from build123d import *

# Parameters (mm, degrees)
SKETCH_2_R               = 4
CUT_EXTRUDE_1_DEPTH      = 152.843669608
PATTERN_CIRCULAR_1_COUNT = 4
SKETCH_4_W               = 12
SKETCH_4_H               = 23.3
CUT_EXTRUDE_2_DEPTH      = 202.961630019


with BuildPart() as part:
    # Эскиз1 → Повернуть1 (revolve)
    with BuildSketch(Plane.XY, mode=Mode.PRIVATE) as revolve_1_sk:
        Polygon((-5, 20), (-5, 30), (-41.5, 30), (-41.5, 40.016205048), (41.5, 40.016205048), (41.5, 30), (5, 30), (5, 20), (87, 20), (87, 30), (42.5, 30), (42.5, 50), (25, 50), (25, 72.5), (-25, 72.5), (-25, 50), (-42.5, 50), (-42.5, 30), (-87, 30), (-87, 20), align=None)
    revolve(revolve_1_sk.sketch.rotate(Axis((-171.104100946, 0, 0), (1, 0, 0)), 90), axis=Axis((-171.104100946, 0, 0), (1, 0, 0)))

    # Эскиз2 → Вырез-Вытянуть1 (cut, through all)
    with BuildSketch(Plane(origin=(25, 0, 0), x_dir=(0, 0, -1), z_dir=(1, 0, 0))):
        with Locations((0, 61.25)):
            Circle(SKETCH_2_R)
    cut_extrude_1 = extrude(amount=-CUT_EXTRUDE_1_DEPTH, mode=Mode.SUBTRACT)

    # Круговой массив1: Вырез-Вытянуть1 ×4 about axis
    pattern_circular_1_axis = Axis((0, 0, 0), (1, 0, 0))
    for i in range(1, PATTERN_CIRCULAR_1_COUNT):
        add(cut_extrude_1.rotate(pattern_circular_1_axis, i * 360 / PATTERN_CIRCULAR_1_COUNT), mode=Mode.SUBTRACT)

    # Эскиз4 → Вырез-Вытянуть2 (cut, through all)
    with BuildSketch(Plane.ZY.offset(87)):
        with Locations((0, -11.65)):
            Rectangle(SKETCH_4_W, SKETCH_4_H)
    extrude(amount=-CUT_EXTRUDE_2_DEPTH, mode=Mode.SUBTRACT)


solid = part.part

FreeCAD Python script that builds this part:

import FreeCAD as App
import Part
import Sketcher
from FreeCAD import Vector

doc = App.newDocument("Part")
body = doc.addObject("PartDesign::Body", "Body")

# Sketch on XY plane
sketch1 = body.newObject("Sketcher::SketchObject", "Sketch")
sketch1.AttachmentSupport = (doc.getObject("XY_Plane"), [""])
sketch1.MapMode = "FlatFace"
sketch1.addGeometry(Part.LineSegment(Vector(-5, 20, 0), Vector(-5, 30, 0)), False)
sketch1.addGeometry(Part.LineSegment(Vector(-5, 30, 0), Vector(-42, 30, 0)), False)
sketch1.addGeometry(Part.LineSegment(Vector(-42, 30, 0), Vector(-42, 40, 0)), False)
sketch1.addGeometry(Part.LineSegment(Vector(-42, 40, 0), Vector(42, 40, 0)), False)
sketch1.addGeometry(Part.LineSegment(Vector(42, 40, 0), Vector(42, 30, 0)), False)
sketch1.addGeometry(Part.LineSegment(Vector(42, 30, 0), Vector(5, 30, 0)), False)
sketch1.addGeometry(Part.LineSegment(Vector(5, 30, 0), Vector(5, 20, 0)), False)
sketch1.addGeometry(Part.LineSegment(Vector(5, 20, 0), Vector(87, 20, 0)), False)
sketch1.addGeometry(Part.LineSegment(Vector(87, 20, 0), Vector(87, 30, 0)), False)
sketch1.addGeometry(Part.LineSegment(Vector(87, 30, 0), Vector(42, 30, 0)), False)
sketch1.addGeometry(Part.LineSegment(Vector(42, 30, 0), Vector(42, 50, 0)), False)
sketch1.addGeometry(Part.LineSegment(Vector(42, 50, 0), Vector(25, 50, 0)), False)
sketch1.addGeometry(Part.LineSegment(Vector(25, 50, 0), Vector(25, 72, 0)), False)
sketch1.addGeometry(Part.LineSegment(Vector(25, 72, 0), Vector(-25, 72, 0)), False)
sketch1.addGeometry(Part.LineSegment(Vector(-25, 72, 0), Vector(-25, 50, 0)), False)
sketch1.addGeometry(Part.LineSegment(Vector(-25, 50, 0), Vector(-42, 50, 0)), False)
sketch1.addGeometry(Part.LineSegment(Vector(-42, 50, 0), Vector(-42, 30, 0)), False)
sketch1.addGeometry(Part.LineSegment(Vector(-42, 30, 0), Vector(-87, 30, 0)), False)
sketch1.addGeometry(Part.LineSegment(Vector(-87, 30, 0), Vector(-87, 20, 0)), False)
sketch1.addGeometry(Part.LineSegment(Vector(-87, 20, 0), Vector(-5, 20, 0)), False)
sketch1.addConstraint(Sketcher.Constraint("Coincident", 0, 2, 1, 1))
sketch1.addConstraint(Sketcher.Constraint("Coincident", 1, 2, 2, 1))
sketch1.addConstraint(Sketcher.Constraint("Coincident", 2, 2, 3, 1))
sketch1.addConstraint(Sketcher.Constraint("Coincident", 3, 2, 4, 1))
sketch1.addConstraint(Sketcher.Constraint("Coincident", 4, 2, 5, 1))
sketch1.addConstraint(Sketcher.Constraint("Coincident", 5, 2, 6, 1))
sketch1.addConstraint(Sketcher.Constraint("Coincident", 6, 2, 7, 1))
sketch1.addConstraint(Sketcher.Constraint("Coincident", 7, 2, 8, 1))
sketch1.addConstraint(Sketcher.Constraint("Coincident", 8, 2, 9, 1))
sketch1.addConstraint(Sketcher.Constraint("Coincident", 9, 2, 10, 1))
sketch1.addConstraint(Sketcher.Constraint("Coincident", 10, 2, 11, 1))
sketch1.addConstraint(Sketcher.Constraint("Coincident", 11, 2, 12, 1))
sketch1.addConstraint(Sketcher.Constraint("Coincident", 12, 2, 13, 1))
sketch1.addConstraint(Sketcher.Constraint("Coincident", 13, 2, 14, 1))
sketch1.addConstraint(Sketcher.Constraint("Coincident", 14, 2, 15, 1))
sketch1.addConstraint(Sketcher.Constraint("Coincident", 15, 2, 16, 1))
sketch1.addConstraint(Sketcher.Constraint("Coincident", 16, 2, 17, 1))
sketch1.addConstraint(Sketcher.Constraint("Coincident", 17, 2, 18, 1))
sketch1.addConstraint(Sketcher.Constraint("Coincident", 18, 2, 19, 1))
sketch1.addConstraint(Sketcher.Constraint("Coincident", 19, 2, 0, 1))
sketch1.addConstraint(Sketcher.Constraint("Vertical", 0))
sketch1.addConstraint(Sketcher.Constraint("Horizontal", 1))
sketch1.addConstraint(Sketcher.Constraint("Vertical", 2))
sketch1.addConstraint(Sketcher.Constraint("Horizontal", 3))
sketch1.addConstraint(Sketcher.Constraint("Vertical", 4))
sketch1.addConstraint(Sketcher.Constraint("Horizontal", 5))
sketch1.addConstraint(Sketcher.Constraint("Vertical", 6))
sketch1.addConstraint(Sketcher.Constraint("Horizontal", 7))
sketch1.addConstraint(Sketcher.Constraint("Vertical", 8))
sketch1.addConstraint(Sketcher.Constraint("Horizontal", 9))
sketch1.addConstraint(Sketcher.Constraint("Vertical", 10))
sketch1.addConstraint(Sketcher.Constraint("Horizontal", 11))
sketch1.addConstraint(Sketcher.Constraint("Vertical", 12))
sketch1.addConstraint(Sketcher.Constraint("Horizontal", 13))
sketch1.addConstraint(Sketcher.Constraint("Vertical", 14))
sketch1.addConstraint(Sketcher.Constraint("Horizontal", 15))
sketch1.addConstraint(Sketcher.Constraint("Vertical", 16))
sketch1.addConstraint(Sketcher.Constraint("Horizontal", 17))
sketch1.addConstraint(Sketcher.Constraint("Vertical", 18))
sketch1.addConstraint(Sketcher.Constraint("Horizontal", 19))
sketch1.addConstraint(Sketcher.Constraint("Symmetric", 1, 2, 4, 2, -2))
sketch1.addConstraint(Sketcher.Constraint("Symmetric", 11, 2, 14, 2, -2))
sketch1.addConstraint(Sketcher.Constraint("Symmetric", 9, 2, 16, 2, -2))
sketch1.addConstraint(Sketcher.Constraint("Symmetric", 7, 2, 18, 2, -2))
sketch1.addConstraint(Sketcher.Constraint("Horizontal", 5, 2, 8, 2))
sketch1.addConstraint(Sketcher.Constraint("Equal", 1, 5))
sketch1.addConstraint(Sketcher.Constraint("DistanceX", 3, 1, 3, 2, 83.0))
sketch1.addConstraint(Sketcher.Constraint("DistanceX", 7, 1, 7, 2, 82.0))
sketch1.addConstraint(Sketcher.Constraint("DistanceX", 13, 2, 13, 1, 50.0))
sketch1.addConstraint(Sketcher.Constraint("DistanceY", 0, 1, 0, 2, 10.0))
sketch1.addConstraint(Sketcher.Constraint("DistanceY", 10, 1, 10, 2, 20.0))
sketch1.addConstraint(Sketcher.Constraint("DistanceX", 1, 2, 1, 1, 36.5))
sketch1.addConstraint(Sketcher.Constraint("DistanceX", 9, 2, 9, 1, 44.5))
sketch1.addConstraint(Sketcher.Constraint("DistanceY", 12, 1, 12, 2, 22.5))
sketch1.addConstraint(Sketcher.Constraint("DistanceY", -1, 1, 0, 2, 30.0))
sketch1.addConstraint(Sketcher.Constraint("DistanceY", 2, 1, 2, 2, 10.016205))
revolution = body.newObject("PartDesign::Revolution", "Revolution")
revolution.Profile = sketch1
revolution.ReferenceAxis = (sketch1, ["H_Axis"])
revolution.Angle = 360

# Sketch on YZ plane
sketch2 = body.newObject("Sketcher::SketchObject", "Sketch001")
sketch2.AttachmentSupport = (doc.getObject("YZ_Plane"), [""])
sketch2.MapMode = "FlatFace"
sketch2.AttachmentOffset = App.Placement(Vector(0, 0, 25), App.Rotation())
sketch2.addGeometry(Part.Circle(Vector(61.2, 0, 0), Vector(0, 0, 1), 4), False)
sketch2.addConstraint(Sketcher.Constraint("PointOnObject", 0, 3, -1))
sketch2.addConstraint(Sketcher.Constraint("Diameter", 0, 8.0))
sketch2.addConstraint(Sketcher.Constraint("DistanceX", -1, 1, 0, 3, 61.25))
pocket1 = body.newObject("PartDesign::Pocket", "Pocket")
pocket1.Profile = sketch2
pocket1.Type = "ThroughAll"
doc.recompute()

polarpattern = body.newObject("PartDesign::PolarPattern", "PolarPattern")
polarpattern.Originals = [pocket1]
polarpattern.Axis = (doc.getObject("X_Axis"), [""])
polarpattern.Angle = 360
polarpattern.Occurrences = 4
body.Tip = polarpattern

# Sketch on YZ plane
sketch3 = body.newObject("Sketcher::SketchObject", "Sketch002")
sketch3.AttachmentSupport = (doc.getObject("YZ_Plane"), [""])
sketch3.MapMode = "FlatFace"
sketch3.AttachmentOffset = App.Placement(Vector(0, 0, -87), App.Rotation())
sketch3.addGeometry(Part.LineSegment(Vector(0, -6, 0), Vector(-23, -6, 0)), False)
sketch3.addGeometry(Part.LineSegment(Vector(-23, -6, 0), Vector(-23, 6, 0)), False)
sketch3.addGeometry(Part.LineSegment(Vector(-23, 6, 0), Vector(0, 6, 0)), False)
sketch3.addGeometry(Part.LineSegment(Vector(0, 6, 0), Vector(0, -6, 0)), False)
sketch3.addConstraint(Sketcher.Constraint("Coincident", 0, 2, 1, 1))
sketch3.addConstraint(Sketcher.Constraint("Coincident", 1, 2, 2, 1))
sketch3.addConstraint(Sketcher.Constraint("Coincident", 2, 2, 3, 1))
sketch3.addConstraint(Sketcher.Constraint("Coincident", 3, 2, 0, 1))
sketch3.addConstraint(Sketcher.Constraint("Horizontal", 0))
sketch3.addConstraint(Sketcher.Constraint("Vertical", 1))
sketch3.addConstraint(Sketcher.Constraint("Horizontal", 2))
sketch3.addConstraint(Sketcher.Constraint("Vertical", 3))
sketch3.addConstraint(Sketcher.Constraint("Symmetric", 2, 2, 3, 2, -1, 1))
sketch3.addConstraint(Sketcher.Constraint("DistanceY", 1, 1, 1, 2, 12.0))
sketch3.addConstraint(Sketcher.Constraint("DistanceX", 0, 2, 0, 1, 23.3))
pocket2 = body.newObject("PartDesign::Pocket", "Pocket001")
pocket2.Profile = sketch3
pocket2.Type = "ThroughAll"
pocket2.Reversed = True

doc.recompute()
